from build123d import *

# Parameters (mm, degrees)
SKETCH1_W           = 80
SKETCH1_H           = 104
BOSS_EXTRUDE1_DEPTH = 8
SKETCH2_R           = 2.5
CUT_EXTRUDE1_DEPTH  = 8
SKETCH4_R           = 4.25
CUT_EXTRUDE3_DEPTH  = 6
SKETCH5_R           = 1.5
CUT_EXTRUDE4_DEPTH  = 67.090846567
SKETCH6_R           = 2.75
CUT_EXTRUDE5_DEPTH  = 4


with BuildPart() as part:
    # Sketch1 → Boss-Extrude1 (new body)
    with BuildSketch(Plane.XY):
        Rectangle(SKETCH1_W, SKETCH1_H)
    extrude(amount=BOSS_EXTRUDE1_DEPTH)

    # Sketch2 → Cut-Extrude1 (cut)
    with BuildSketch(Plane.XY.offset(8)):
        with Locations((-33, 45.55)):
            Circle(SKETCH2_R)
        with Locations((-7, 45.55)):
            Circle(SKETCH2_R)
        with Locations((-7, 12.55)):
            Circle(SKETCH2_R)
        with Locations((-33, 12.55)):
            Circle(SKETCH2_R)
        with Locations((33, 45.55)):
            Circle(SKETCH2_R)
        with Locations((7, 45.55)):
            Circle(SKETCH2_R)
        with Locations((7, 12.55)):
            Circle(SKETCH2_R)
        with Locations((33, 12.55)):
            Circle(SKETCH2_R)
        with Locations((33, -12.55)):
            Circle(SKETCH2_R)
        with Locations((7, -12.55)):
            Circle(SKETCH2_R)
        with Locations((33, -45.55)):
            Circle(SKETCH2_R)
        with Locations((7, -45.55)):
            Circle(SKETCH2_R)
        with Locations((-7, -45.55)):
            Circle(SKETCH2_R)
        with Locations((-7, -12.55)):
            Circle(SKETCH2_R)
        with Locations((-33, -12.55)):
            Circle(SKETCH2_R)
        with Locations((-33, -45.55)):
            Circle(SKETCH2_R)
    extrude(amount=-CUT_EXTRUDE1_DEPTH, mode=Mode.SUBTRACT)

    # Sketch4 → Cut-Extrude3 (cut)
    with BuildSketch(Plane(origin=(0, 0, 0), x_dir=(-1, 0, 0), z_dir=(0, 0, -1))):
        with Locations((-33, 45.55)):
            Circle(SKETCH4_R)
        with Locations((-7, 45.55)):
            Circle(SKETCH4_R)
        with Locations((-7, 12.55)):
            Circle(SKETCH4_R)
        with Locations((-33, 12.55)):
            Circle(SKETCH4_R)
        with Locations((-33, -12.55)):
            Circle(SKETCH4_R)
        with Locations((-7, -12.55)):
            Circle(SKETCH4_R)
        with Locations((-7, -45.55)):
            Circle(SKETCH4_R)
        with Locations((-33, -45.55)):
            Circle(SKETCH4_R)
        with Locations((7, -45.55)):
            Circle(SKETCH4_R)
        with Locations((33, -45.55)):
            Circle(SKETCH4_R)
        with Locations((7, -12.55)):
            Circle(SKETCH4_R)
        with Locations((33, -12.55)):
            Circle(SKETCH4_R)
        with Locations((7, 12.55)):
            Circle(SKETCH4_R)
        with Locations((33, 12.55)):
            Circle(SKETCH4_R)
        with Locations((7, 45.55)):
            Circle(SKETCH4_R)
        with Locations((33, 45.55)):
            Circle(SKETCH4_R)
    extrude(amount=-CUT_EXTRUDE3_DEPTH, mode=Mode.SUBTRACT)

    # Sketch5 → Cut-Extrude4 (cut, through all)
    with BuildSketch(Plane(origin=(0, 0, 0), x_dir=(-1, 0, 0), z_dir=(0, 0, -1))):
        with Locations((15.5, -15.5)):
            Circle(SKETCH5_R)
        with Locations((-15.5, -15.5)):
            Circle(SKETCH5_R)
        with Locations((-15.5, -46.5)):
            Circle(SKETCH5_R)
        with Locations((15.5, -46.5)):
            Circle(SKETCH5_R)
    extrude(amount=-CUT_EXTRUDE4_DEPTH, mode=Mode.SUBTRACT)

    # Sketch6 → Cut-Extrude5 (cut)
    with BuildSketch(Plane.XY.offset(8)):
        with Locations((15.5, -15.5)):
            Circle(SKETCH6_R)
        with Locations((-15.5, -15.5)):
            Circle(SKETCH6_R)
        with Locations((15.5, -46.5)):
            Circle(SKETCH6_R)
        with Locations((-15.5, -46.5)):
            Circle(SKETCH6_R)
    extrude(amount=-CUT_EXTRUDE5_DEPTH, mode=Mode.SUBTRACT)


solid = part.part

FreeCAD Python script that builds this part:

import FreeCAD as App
import Part
import Sketcher

V = App.Vector

doc = App.newDocument("Part")
params = doc.addObject("Spreadsheet::Sheet", "Params")
for row, (alias, value) in enumerate([
    ("sketch1_width", "80 mm"),
    ("sketch1_height", "104 mm"),
    ("pad1_length", "8 mm"),
    ("sketch2_diameter", "5 mm"),
    ("pocket1_length", "8 mm"),
    ("sketch3_diameter", "8.5 mm"),
    ("pocket2_length", "6 mm"),
    ("sketch4_diameter", "3 mm"),
    ("sketch5_diameter", "5.5 mm"),
    ("pocket4_length", "4 mm"),
], start=1):
    params.set(f"A{row}", alias)
    params.set(f"B{row}", "=" + value)
    params.setAlias(f"B{row}", alias)

body = doc.addObject("PartDesign::Body", "Body")

sketch1 = doc.addObject("Sketcher::SketchObject", "Sketch")
body.addObject(sketch1)
sketch1.AttachmentSupport = (doc.XY_Plane, [""])
sketch1.MapMode = "FlatFace"
sketch1.addGeometry([
    Part.LineSegment(V(-40, 52, 0), V(-40, -52, 0)),
    Part.LineSegment(V(-40, -52, 0), V(40, -52, 0)),
    Part.LineSegment(V(40, -52, 0), V(40, 52, 0)),
    Part.LineSegment(V(40, 52, 0), V(-40, 52, 0)),
], False)
sketch1.addConstraint([
    Sketcher.Constraint("Coincident", 0, 2, 1, 1),
    Sketcher.Constraint("Coincident", 1, 2, 2, 1),
    Sketcher.Constraint("Coincident", 2, 2, 3, 1),
    Sketcher.Constraint("Coincident", 3, 2, 0, 1),
    Sketcher.Constraint("Vertical", 0),
    Sketcher.Constraint("Horizontal", 1),
    Sketcher.Constraint("Vertical", 2),
    Sketcher.Constraint("Horizontal", 3),
    Sketcher.Constraint("Symmetric", 0, 2, 2, 2, -1, 1),
    Sketcher.Constraint("DistanceX", 1, 1, 1, 2, 80.0),
    Sketcher.Constraint("DistanceY", 0, 2, 0, 1, 104.0),
])
sketch1.setExpression("Constraints[9]", "Params.sketch1_width")
sketch1.setExpression("Constraints[10]", "Params.sketch1_height")
pad1 = doc.addObject("PartDesign::Pad", "Pad")
body.addObject(pad1)
pad1.Profile = sketch1
pad1.setExpression("Length", "Params.pad1_length")

sketch2 = doc.addObject("Sketcher::SketchObject", "Sketch001")
body.addObject(sketch2)
sketch2.AttachmentSupport = (doc.XY_Plane, [""])
sketch2.MapMode = "FlatFace"
sketch2.AttachmentOffset = App.Placement(V(0, 0, 8), App.Rotation())
sketch2.addGeometry([
    Part.Circle(V(-33, 45.5, 0), V(0, 0, 1), 2.5),
    Part.Circle(V(-7, 45.5, 0), V(0, 0, 1), 2.5),
    Part.Circle(V(-7, 12.6, 0), V(0, 0, 1), 2.5),
    Part.Circle(V(-33, 12.6, 0), V(0, 0, 1), 2.5),
    Part.Circle(V(33, 45.5, 0), V(0, 0, 1), 2.5),
    Part.Circle(V(7, 45.5, 0), V(0, 0, 1), 2.5),
    Part.Circle(V(7, 12.6, 0), V(0, 0, 1), 2.5),
    Part.Circle(V(33, 12.6, 0), V(0, 0, 1), 2.5),
    Part.Circle(V(33, -12.6, 0), V(0, 0, 1), 2.5),
    Part.Circle(V(7, -12.6, 0), V(0, 0, 1), 2.5),
    Part.Circle(V(33, -45.5, 0), V(0, 0, 1), 2.5),
    Part.Circle(V(7, -45.5, 0), V(0, 0, 1), 2.5),
    Part.Circle(V(-7, -45.5, 0), V(0, 0, 1), 2.5),
    Part.Circle(V(-7, -12.6, 0), V(0, 0, 1), 2.5),
    Part.Circle(V(-33, -12.6, 0), V(0, 0, 1), 2.5),
    Part.Circle(V(-33, -45.5, 0), V(0, 0, 1), 2.5),
], False)
sketch2.addConstraint([
    Sketcher.Constraint("Equal", 0, 1),
    Sketcher.Constraint("Equal", 1, 2),
    Sketcher.Constraint("Equal", 2, 3),
    Sketcher.Constraint("Equal", 3, 4),
    Sketcher.Constraint("Equal", 4, 5),
    Sketcher.Constraint("Equal", 5, 6),
    Sketcher.Constraint("Equal", 6, 7),
    Sketcher.Constraint("Equal", 7, 8),
    Sketcher.Constraint("Equal", 8, 9),
    Sketcher.Constraint("Equal", 9, 10),
    Sketcher.Constraint("Equal", 10, 11),
    Sketcher.Constraint("Equal", 11, 12),
    Sketcher.Constraint("Equal", 12, 13),
    Sketcher.Constraint("Equal", 13, 14),
    Sketcher.Constraint("Equal", 14, 15),
    Sketcher.Constraint("Symmetric", 3, 3, 8, 3, -1, 1),
    Sketcher.Constraint("Symmetric", 2, 3, 9, 3, -1, 1),
    Sketcher.Constraint("Symmetric", 0, 3, 10, 3, -1, 1),
    Sketcher.Constraint("Symmetric", 1, 3, 11, 3, -1, 1),
    Sketcher.Constraint("Symmetric", 5, 3, 12, 3, -1, 1),
    Sketcher.Constraint("Symmetric", 6, 3, 13, 3, -1, 1),
    Sketcher.Constraint("Symmetric", 7, 3, 14, 3, -1, 1),
    Sketcher.Constraint("Symmetric", 4, 3, 15, 3, -1, 1),
    Sketcher.Constraint("Symmetric", 0, 3, 4, 3, -2),
    Sketcher.Constraint("Symmetric", 1, 3, 5, 3, -2),
    Sketcher.Constraint("Symmetric", 2, 3, 6, 3, -2),
    Sketcher.Constraint("Symmetric", 3, 3, 7, 3, -2),
    Sketcher.Constraint("Horizontal", 0, 3, 1, 3),
    Sketcher.Constraint("Horizontal", 2, 3, 3, 3),
    Sketcher.Constraint("Vertical", 1, 3, 2, 3),
    Sketcher.Constraint("Vertical", 0, 3, 3, 3),
    Sketcher.Constraint("Diameter", 0, 5.0),
    Sketcher.Constraint("DistanceX", 0, 3, -1, 1, 33.0),
    Sketcher.Constraint("DistanceX", 1, 3, -1, 1, 7.0),
    Sketcher.Constraint("DistanceY", 2, 3, 1, 3, 33.0),
    Sketcher.Constraint("DistanceY", 8, 3, 7, 3, 25.1),
])
sketch2.setExpression("Constraints[31]", "Params.sketch2_diameter")
pocket1 = doc.addObject("PartDesign::Pocket", "Pocket")
body.addObject(pocket1)
pocket1.Profile = sketch2
pocket1.setExpression("Length", "Params.pocket1_length")

sketch3 = doc.addObject("Sketcher::SketchObject", "Sketch002")
body.addObject(sketch3)
sketch3.AttachmentSupport = (doc.XY_Plane, [""])
sketch3.MapMode = "FlatFace"
sketch3.addGeometry([
    Part.Circle(V(33, 45.5, 0), V(0, 0, 1), 4.2),
    Part.Circle(V(7, 45.5, 0), V(0, 0, 1), 4.2),
    Part.Circle(V(7, 12.6, 0), V(0, 0, 1), 4.2),
    Part.Circle(V(33, 12.6, 0), V(0, 0, 1), 4.2),
    Part.Circle(V(33, -12.6, 0), V(0, 0, 1), 4.2),
    Part.Circle(V(7, -12.6, 0), V(0, 0, 1), 4.2),
    Part.Circle(V(7, -45.5, 0), V(0, 0, 1), 4.2),
    Part.Circle(V(33, -45.5, 0), V(0, 0, 1), 4.2),
    Part.Circle(V(-7, -45.5, 0), V(0, 0, 1), 4.2),
    Part.Circle(V(-33, -45.5, 0), V(0, 0, 1), 4.2),
    Part.Circle(V(-7, -12.6, 0), V(0, 0, 1), 4.2),
    Part.Circle(V(-33, -12.6, 0), V(0, 0, 1), 4.2),
    Part.Circle(V(-7, 12.6, 0), V(0, 0, 1), 4.2),
    Part.Circle(V(-33, 12.6, 0), V(0, 0, 1), 4.2),
    Part.Circle(V(-7, 45.5, 0), V(0, 0, 1), 4.2),
    Part.Circle(V(-33, 45.5, 0), V(0, 0, 1), 4.2),
], False)
sketch3.addConstraint([
    Sketcher.Constraint("Equal", 0, 1),
    Sketcher.Constraint("Equal", 1, 2),
    Sketcher.Constraint("Equal", 2, 3),
    Sketcher.Constraint("Equal", 3, 4),
    Sketcher.Constraint("Equal", 4, 5),
    Sketcher.Constraint("Equal", 5, 6),
    Sketcher.Constraint("Equal", 6, 7),
    Sketcher.Constraint("Equal", 7, 8),
    Sketcher.Constraint("Equal", 8, 9),
    Sketcher.Constraint("Equal", 9, 10),
    Sketcher.Constraint("Equal", 10, 11),
    Sketcher.Constraint("Equal", 11, 12),
    Sketcher.Constraint("Equal", 12, 13),
    Sketcher.Constraint("Equal", 13, 14),
    Sketcher.Constraint("Equal", 14, 15),
    Sketcher.Constraint("Symmetric", 1, 3, 8, 3, -1, 1),
    Sketcher.Constraint("Symmetric", 0, 3, 9, 3, -1, 1),
    Sketcher.Constraint("Symmetric", 2, 3, 10, 3, -1, 1),
    Sketcher.Constraint("Symmetric", 3, 3, 11, 3, -1, 1),
    Sketcher.Constraint("Symmetric", 5, 3, 12, 3, -1, 1),
    Sketcher.Constraint("Symmetric", 4, 3, 13, 3, -1, 1),
    Sketcher.Constraint("Symmetric", 6, 3, 14, 3, -1, 1),
    Sketcher.Constraint("Symmetric", 7, 3, 15, 3, -1, 1),
    Sketcher.Constraint("Symmetric", 6, 3, 8, 3, -2),
    Sketcher.Constraint("Symmetric", 7, 3, 9, 3, -2),
    Sketcher.Constraint("Symmetric", 5, 3, 10, 3, -2),
    Sketcher.Constraint("Symmetric", 4, 3, 11, 3, -2),
    Sketcher.Constraint("Horizontal", 0, 3, 1, 3),
    Sketcher.Constraint("Horizontal", 2, 3, 3, 3),
    Sketcher.Constraint("Vertical", 1, 3, 2, 3),
    Sketcher.Constraint("Vertical", 0, 3, 3, 3),
    Sketcher.Constraint("Diameter", 0, 8.5),
    Sketcher.Constraint("DistanceX", -1, 1, 0, 3, 33.0),
    Sketcher.Constraint("DistanceX", -1, 1, 1, 3, 7.0),
    Sketcher.Constraint("DistanceY", 2, 3, 1, 3, 33.0),
    Sketcher.Constraint("DistanceY", 4, 3, 3, 3, 25.1),
])
sketch3.setExpression("Constraints[31]", "Params.sketch3_diameter")
pocket2 = doc.addObject("PartDesign::Pocket", "Pocket001")
body.addObject(pocket2)
pocket2.Profile = sketch3
pocket2.setExpression("Length", "Params.pocket2_length")
pocket2.Reversed = True

sketch4 = doc.addObject("Sketcher::SketchObject", "Sketch003")
body.addObject(sketch4)
sketch4.AttachmentSupport = (doc.XY_Plane, [""])
sketch4.MapMode = "FlatFace"
sketch4.addGeometry([
    Part.Circle(V(-15.5, -15.5, 0), V(0, 0, 1), 1.5),
    Part.Circle(V(15.5, -15.5, 0), V(0, 0, 1), 1.5),
    Part.Circle(V(15.5, -46.5, 0), V(0, 0, 1), 1.5),
    Part.Circle(V(-15.5, -46.5, 0), V(0, 0, 1), 1.5),
], False)
sketch4.addConstraint([
    Sketcher.Constraint("Equal", 0, 1),
    Sketcher.Constraint("Equal", 1, 2),
    Sketcher.Constraint("Equal", 2, 3),
    Sketcher.Constraint("Symmetric", 0, 3, 1, 3, -2),
    Sketcher.Constraint("Symmetric", 2, 3, 3, 3, -2),
    Sketcher.Constraint("Vertical", 1, 3, 2, 3),
    Sketcher.Constraint("Diameter", 0, 3.0),
    Sketcher.Constraint("DistanceX", 0, 3, 1, 3, 31.0),
    Sketcher.Constraint("DistanceY", 2, 3, 1, 3, 31.0),
    Sketcher.Constraint("DistanceY", 0, 3, -1, 1, 15.5),
])
sketch4.setExpression("Constraints[6]", "Params.sketch4_diameter")
pocket3 = doc.addObject("PartDesign::Pocket", "Pocket002")
body.addObject(pocket3)
pocket3.Profile = sketch4
pocket3.Type = "ThroughAll"
pocket3.Reversed = True

sketch5 = doc.addObject("Sketcher::SketchObject", "Sketch004")
body.addObject(sketch5)
sketch5.AttachmentSupport = (doc.XY_Plane, [""])
sketch5.MapMode = "FlatFace"
sketch5.AttachmentOffset = App.Placement(V(0, 0, 8), App.Rotation())
sketch5.addGeometry([
    Part.Circle(V(15.5, -15.5, 0), V(0, 0, 1), 2.8),
    Part.Circle(V(-15.5, -15.5, 0), V(0, 0, 1), 2.8),
    Part.Circle(V(15.5, -46.5, 0), V(0, 0, 1), 2.8),
    Part.Circle(V(-15.5, -46.5, 0), V(0, 0, 1), 2.8),
], False)
sketch5.addConstraint([
    Sketcher.Constraint("Equal", 0, 1),
    Sketcher.Constraint("Equal", 1, 2),
    Sketcher.Constraint("Equal", 2, 3),
    Sketcher.Constraint("Symmetric", 0, 3, 1, 3, -2),
    Sketcher.Constraint("Symmetric", 2, 3, 3, 3, -2),
    Sketcher.Constraint("Vertical", 0, 3, 2, 3),
    Sketcher.Constraint("Diameter", 0, 5.5),
    Sketcher.Constraint("DistanceX", 1, 3, 0, 3, 31.0),
    Sketcher.Constraint("DistanceY", 2, 3, 0, 3, 31.0),
    Sketcher.Constraint("DistanceY", 0, 3, -1, 1, 15.5),
])
sketch5.setExpression("Constraints[6]", "Params.sketch5_diameter")
pocket4 = doc.addObject("PartDesign::Pocket", "Pocket003")
body.addObject(pocket4)
pocket4.Profile = sketch5
pocket4.setExpression("Length", "Params.pocket4_length")

doc.recompute()
